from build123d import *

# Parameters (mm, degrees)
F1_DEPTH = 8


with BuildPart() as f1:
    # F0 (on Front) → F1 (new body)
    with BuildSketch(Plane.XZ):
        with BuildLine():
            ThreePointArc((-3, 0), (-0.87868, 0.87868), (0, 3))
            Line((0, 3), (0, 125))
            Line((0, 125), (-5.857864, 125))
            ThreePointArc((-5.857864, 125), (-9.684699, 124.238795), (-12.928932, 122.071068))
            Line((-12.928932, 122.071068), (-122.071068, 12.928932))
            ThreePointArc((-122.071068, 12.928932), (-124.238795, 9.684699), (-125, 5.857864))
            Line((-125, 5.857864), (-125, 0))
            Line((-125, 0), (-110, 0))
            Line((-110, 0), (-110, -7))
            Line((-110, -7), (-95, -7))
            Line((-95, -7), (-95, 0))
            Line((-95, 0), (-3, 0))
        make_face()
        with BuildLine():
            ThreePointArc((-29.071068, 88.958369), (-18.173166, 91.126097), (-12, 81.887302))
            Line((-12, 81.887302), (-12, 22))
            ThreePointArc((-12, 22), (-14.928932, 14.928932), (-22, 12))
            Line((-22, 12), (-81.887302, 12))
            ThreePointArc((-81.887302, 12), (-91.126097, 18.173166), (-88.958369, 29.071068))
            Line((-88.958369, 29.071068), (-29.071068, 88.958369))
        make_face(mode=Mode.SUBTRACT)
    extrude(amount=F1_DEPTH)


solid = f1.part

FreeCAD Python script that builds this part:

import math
import FreeCAD as App
import Part
import Sketcher

doc = App.newDocument("Part")
body = doc.addObject("PartDesign::Body", "Body")

# Sketch on XZ plane
sketch1 = doc.addObject("Sketcher::SketchObject", "Sketch")
body.addObject(sketch1)
sketch1.AttachmentSupport = (doc.XZ_Plane, [""])
sketch1.MapMode = "FlatFace"
sketch1.addGeometry([
    Part.ArcOfCircle(Part.Circle(App.Vector(-3, 3, 0), App.Vector(0, 0, 1), 3), math.radians(-90), math.radians(0)),  # 0
    Part.LineSegment(App.Vector(0, 3, 0), App.Vector(0, 125, 0)),  # 1
    Part.LineSegment(App.Vector(0, 125, 0), App.Vector(-5.9, 125, 0)),  # 2
    Part.ArcOfCircle(Part.Circle(App.Vector(-5.9, 115, 0), App.Vector(0, 0, 1), 10), math.radians(90), math.radians(135)),  # 3
    Part.LineSegment(App.Vector(-12.9, 122.1, 0), App.Vector(-122.1, 12.9, 0)),  # 4
    Part.ArcOfCircle(Part.Circle(App.Vector(-115, 5.9, 0), App.Vector(0, 0, 1), 10), math.radians(135), math.radians(180)),  # 5
    Part.LineSegment(App.Vector(-125, 5.9, 0), App.Vector(-125, 0, 0)),  # 6
    Part.LineSegment(App.Vector(-125, 0, 0), App.Vector(-110, 0, 0)),  # 7
    Part.LineSegment(App.Vector(-110, 0, 0), App.Vector(-110, -7, 0)),  # 8
    Part.LineSegment(App.Vector(-110, -7, 0), App.Vector(-95, -7, 0)),  # 9
    Part.LineSegment(App.Vector(-95, -7, 0), App.Vector(-95, 0, 0)),  # 10
    Part.LineSegment(App.Vector(-95, 0, 0), App.Vector(-3, 0, 0)),  # 11
    Part.LineSegment(App.Vector(-89, 29.1, 0), App.Vector(-29.1, 89, 0)),  # 12
    Part.ArcOfCircle(Part.Circle(App.Vector(-22, 81.9, 0), App.Vector(0, 0, 1), 10), math.radians(0), math.radians(135)),  # 13
    Part.LineSegment(App.Vector(-12, 81.9, 0), App.Vector(-12, 22, 0)),  # 14
    Part.ArcOfCircle(Part.Circle(App.Vector(-22, 22, 0), App.Vector(0, 0, 1), 10), math.radians(-90), math.radians(0)),  # 15
    Part.LineSegment(App.Vector(-22, 12, 0), App.Vector(-81.9, 12, 0)),  # 16
    Part.ArcOfCircle(Part.Circle(App.Vector(-81.9, 22, 0), App.Vector(0, 0, 1), 10), math.radians(135), math.radians(270)),  # 17
], False)
sketch1.addConstraint([
    Sketcher.Constraint("Tangent", 0, 2, 1, 1),
    Sketcher.Constraint("Coincident", 1, 2, 2, 1),
    Sketcher.Constraint("Tangent", 2, 2, 3, 1),
    Sketcher.Constraint("Tangent", 3, 2, 4, 1),
    Sketcher.Constraint("Tangent", 4, 2, 5, 1),
    Sketcher.Constraint("Tangent", 5, 2, 6, 1),
    Sketcher.Constraint("Coincident", 6, 2, 7, 1),
    Sketcher.Constraint("Coincident", 7, 2, 8, 1),
    Sketcher.Constraint("Coincident", 8, 2, 9, 1),
    Sketcher.Constraint("Coincident", 9, 2, 10, 1),
    Sketcher.Constraint("Coincident", 10, 2, 11, 1),
    Sketcher.Constraint("Tangent", 11, 2, 0, 1),
    Sketcher.Constraint("Tangent", 12, 2, 13, 2),
    Sketcher.Constraint("Tangent", 13, 1, 14, 1),
    Sketcher.Constraint("Tangent", 14, 2, 15, 2),
    Sketcher.Constraint("Tangent", 15, 1, 16, 1),
    Sketcher.Constraint("Tangent", 16, 2, 17, 2),
    Sketcher.Constraint("Tangent", 17, 1, 12, 1),
    Sketcher.Constraint("Vertical", 1),
    Sketcher.Constraint("Horizontal", 2),
    Sketcher.Constraint("Vertical", 6),
    Sketcher.Constraint("Horizontal", 7),
    Sketcher.Constraint("Vertical", 8),
    Sketcher.Constraint("Horizontal", 9),
    Sketcher.Constraint("Vertical", 10),
    Sketcher.Constraint("Horizontal", 11),
    Sketcher.Constraint("Vertical", 14),
    Sketcher.Constraint("Horizontal", 16),
    Sketcher.Constraint("Equal", 3, 5),
    Sketcher.Constraint("Equal", 13, 15),
    Sketcher.Constraint("Equal", 15, 17),
    Sketcher.Constraint("PointOnObject", 0, 2, -2),
    Sketcher.Constraint("PointOnObject", 6, 2, -1),
    Sketcher.Constraint("PointOnObject", 10, 2, -1),
    Sketcher.Constraint("Parallel", 4, 12),
    Sketcher.Constraint("Equal", 7, 9),
    Sketcher.Constraint("Equal", 2, 6),
    Sketcher.Constraint("Equal", 16, 14),
    Sketcher.Constraint("Radius", 0, 3.000001),
    Sketcher.Constraint("Radius", 13, 10.0),
    Sketcher.Constraint("DistanceX", 7, 1, 7, 2, 15.0),
    Sketcher.Constraint("DistanceX", 11, 1, 11, 2, 92.0),
    Sketcher.Constraint("DistanceY", 8, 2, 8, 1, 7.0),
    Sketcher.Constraint("DistanceX", 13, 3, -1, 1, 22.0),
    Sketcher.Constraint("DistanceY", -1, 1, 15, 3, 21.999999),
    Sketcher.Constraint("DistanceY", 15, 3, 3, 3, 92.999998),
    Sketcher.Constraint("DistanceY", -1, 1, 13, 3, 81.887302),
    Sketcher.Constraint("Distance", 4, 154.350289),
])
pad1 = doc.addObject("PartDesign::Pad", "Pad")
body.addObject(pad1)
pad1.Profile = sketch1
pad1.Length = 8

doc.recompute()
